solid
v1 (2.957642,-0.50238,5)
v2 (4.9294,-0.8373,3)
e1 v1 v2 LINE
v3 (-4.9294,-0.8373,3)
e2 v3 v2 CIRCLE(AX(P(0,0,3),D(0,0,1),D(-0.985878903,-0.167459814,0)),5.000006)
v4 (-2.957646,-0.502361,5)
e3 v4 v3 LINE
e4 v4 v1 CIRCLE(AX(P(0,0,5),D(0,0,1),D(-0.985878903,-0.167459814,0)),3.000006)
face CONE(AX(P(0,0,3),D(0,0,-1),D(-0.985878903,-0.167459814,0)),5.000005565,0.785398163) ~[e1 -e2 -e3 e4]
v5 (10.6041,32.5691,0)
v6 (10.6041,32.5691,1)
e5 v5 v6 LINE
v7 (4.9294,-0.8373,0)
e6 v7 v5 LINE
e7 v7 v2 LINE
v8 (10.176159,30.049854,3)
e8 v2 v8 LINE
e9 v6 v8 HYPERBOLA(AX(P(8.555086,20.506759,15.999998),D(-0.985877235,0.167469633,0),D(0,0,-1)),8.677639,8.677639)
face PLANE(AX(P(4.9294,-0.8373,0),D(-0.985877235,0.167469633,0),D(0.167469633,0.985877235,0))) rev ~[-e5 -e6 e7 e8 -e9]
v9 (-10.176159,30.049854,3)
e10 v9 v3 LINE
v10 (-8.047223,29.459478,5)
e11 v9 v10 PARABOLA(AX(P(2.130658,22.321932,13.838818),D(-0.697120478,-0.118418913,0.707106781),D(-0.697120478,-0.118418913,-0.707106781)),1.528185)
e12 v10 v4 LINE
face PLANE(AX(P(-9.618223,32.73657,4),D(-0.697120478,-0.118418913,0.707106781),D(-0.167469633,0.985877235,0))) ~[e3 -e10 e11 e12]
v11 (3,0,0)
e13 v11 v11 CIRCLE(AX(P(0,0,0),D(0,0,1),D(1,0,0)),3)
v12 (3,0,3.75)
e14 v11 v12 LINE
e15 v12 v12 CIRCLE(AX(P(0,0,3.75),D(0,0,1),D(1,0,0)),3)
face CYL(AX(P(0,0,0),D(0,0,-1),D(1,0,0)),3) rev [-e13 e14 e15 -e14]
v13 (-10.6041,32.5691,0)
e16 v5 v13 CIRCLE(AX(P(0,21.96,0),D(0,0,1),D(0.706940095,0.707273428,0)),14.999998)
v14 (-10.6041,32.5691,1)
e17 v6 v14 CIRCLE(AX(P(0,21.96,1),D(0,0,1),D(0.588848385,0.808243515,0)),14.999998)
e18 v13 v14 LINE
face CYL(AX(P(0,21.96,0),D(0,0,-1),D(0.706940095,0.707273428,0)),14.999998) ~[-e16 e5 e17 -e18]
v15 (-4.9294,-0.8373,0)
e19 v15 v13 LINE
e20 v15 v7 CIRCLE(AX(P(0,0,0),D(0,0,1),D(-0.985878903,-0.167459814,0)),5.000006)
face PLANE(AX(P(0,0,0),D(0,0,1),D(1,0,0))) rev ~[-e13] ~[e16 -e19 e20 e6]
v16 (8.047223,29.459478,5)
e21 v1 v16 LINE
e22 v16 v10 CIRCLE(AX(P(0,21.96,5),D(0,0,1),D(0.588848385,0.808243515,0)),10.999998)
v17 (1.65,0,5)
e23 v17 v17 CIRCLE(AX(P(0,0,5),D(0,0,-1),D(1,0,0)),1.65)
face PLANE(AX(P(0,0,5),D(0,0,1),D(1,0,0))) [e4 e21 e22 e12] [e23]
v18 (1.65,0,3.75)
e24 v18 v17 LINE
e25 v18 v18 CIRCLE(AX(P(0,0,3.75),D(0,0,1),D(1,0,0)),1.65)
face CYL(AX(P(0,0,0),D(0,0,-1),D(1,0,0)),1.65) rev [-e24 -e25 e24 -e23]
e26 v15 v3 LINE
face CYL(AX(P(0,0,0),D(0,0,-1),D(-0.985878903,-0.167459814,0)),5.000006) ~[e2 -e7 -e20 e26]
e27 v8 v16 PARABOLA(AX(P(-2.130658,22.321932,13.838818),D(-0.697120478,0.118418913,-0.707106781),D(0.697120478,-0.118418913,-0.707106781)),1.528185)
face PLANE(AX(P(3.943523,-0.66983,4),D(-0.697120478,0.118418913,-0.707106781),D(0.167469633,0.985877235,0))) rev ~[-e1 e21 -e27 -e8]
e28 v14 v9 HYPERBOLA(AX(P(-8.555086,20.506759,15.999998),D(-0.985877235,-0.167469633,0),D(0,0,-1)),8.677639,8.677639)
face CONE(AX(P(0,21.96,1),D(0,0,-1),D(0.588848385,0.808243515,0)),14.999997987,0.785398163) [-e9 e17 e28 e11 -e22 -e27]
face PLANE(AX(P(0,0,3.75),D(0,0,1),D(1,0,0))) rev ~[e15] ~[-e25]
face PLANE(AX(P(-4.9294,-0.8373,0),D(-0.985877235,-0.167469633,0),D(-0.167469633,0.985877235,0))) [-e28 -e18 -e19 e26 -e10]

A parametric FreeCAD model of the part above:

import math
import FreeCAD as App
import Part
import Sketcher

V = App.Vector
Q = App.Units.Quantity


def edges_at(feature, points):
    """Names of the edges that pass closest to the given points."""
    edges = feature.Shape.Edges
    near = lambda p: min(range(len(edges)), key=lambda i: edges[i].distToShape(Part.Vertex(*p))[0])
    return sorted({f"Edge{near(p) + 1}" for p in points})

doc = App.newDocument("Part")
params = doc.addObject("Spreadsheet::Sheet", "Params")
for row, (alias, value) in enumerate([
    ("sketch1_radius", "5 mm"),
    ("sketch1_radius2", "15 mm"),
    ("pad1_length", "5 mm"),
    ("sketch2_diameter", "3.3 mm"),
    ("pocket1_length", "28 mm"),
    ("sketch3_diameter", "6 mm"),
    ("sketch3_diameter2", "3.3 mm"),
    ("pocket2_length", "3.75 mm"),
    ("chamfer_size", "2 mm"),
    ("chamfer2_size", "4 mm"),
], start=1):
    params.set(f"A{row}", alias)
    params.set(f"B{row}", "=" + value)
    params.setAlias(f"B{row}", alias)

body = doc.addObject("PartDesign::Body", "Body")

# Sketch on XY plane
sketch1 = doc.addObject("Sketcher::SketchObject", "Sketch")
body.addObject(sketch1)
sketch1.AttachmentSupport = (doc.XY_Plane, [""])
sketch1.MapMode = "FlatFace"
sketch1.addGeometry(Part.LineSegment(V(-10.6041, 32.5691, 0), V(-4.9294, -0.8373, 0)), False)
sketch1.addGeometry(Part.ArcOfCircle(Part.Circle(V(0, 0, 0), V(0, 0, 1), 5.000006), math.radians(-170.35984), math.radians(-9.64016)), False)
sketch1.addGeometry(Part.LineSegment(V(4.9294, -0.8373, 0), V(10.6041, 32.5691, 0)), False)
sketch1.addGeometry(Part.ArcOfCircle(Part.Circle(V(0, 21.96, 0), V(0, 0, 1), 14.999998), math.radians(45.013505), math.radians(134.986495)), False)
sketch1.addConstraint(Sketcher.Constraint("Tangent", 0, 2, 1, 1))
sketch1.addConstraint(Sketcher.Constraint("Tangent", 1, 2, 2, 1))
sketch1.addConstraint(Sketcher.Constraint("Coincident", 2, 2, 3, 1))
sketch1.addConstraint(Sketcher.Constraint("Coincident", 3, 2, 0, 1))
sketch1.addConstraint(Sketcher.Constraint("Coincident", 1, 3, -1, 1))
sketch1.addConstraint(Sketcher.Constraint("Symmetric", 2, 2, 3, 2, -2))
sketch1.addConstraint(Sketcher.Constraint("Radius", 1, Q("5 mm")))
sketch1.addConstraint(Sketcher.Constraint("Radius", 3, Q("15 mm")))
sketch1.addConstraint(Sketcher.Constraint("DistanceY", -1, 1, 3, 3, Q("21.96 mm")))
sketch1.addConstraint(Sketcher.Constraint("Distance", 0, Q("33.885 mm")))
sketch1.setExpression("Constraints[6]", "Params.sketch1_radius")
sketch1.setExpression("Constraints[7]", "Params.sketch1_radius2")
pad1 = doc.addObject("PartDesign::Pad", "Pad")
body.addObject(pad1)
pad1.Profile = sketch1
pad1.setExpression("Length", "Params.pad1_length")

# Sketch on XY plane
sketch2 = doc.addObject("Sketcher::SketchObject", "Sketch001")
body.addObject(sketch2)
sketch2.AttachmentSupport = (doc.XY_Plane, [""])
sketch2.MapMode = "FlatFace"
sketch2.addGeometry(Part.Circle(V(0, 0, 0), V(0, 0, 1), 1.65), False)
sketch2.addConstraint(Sketcher.Constraint("Coincident", 0, 3, -1, 1))
sketch2.addConstraint(Sketcher.Constraint("Diameter", 0, Q("3.3 mm")))
sketch2.setExpression("Constraints[1]", "Params.sketch2_diameter")
pocket1 = doc.addObject("PartDesign::Pocket", "Pocket")
body.addObject(pocket1)
pocket1.Profile = sketch2
pocket1.setExpression("Length", "Params.pocket1_length")
pocket1.Reversed = True

# Sketch on XY plane
sketch3 = doc.addObject("Sketcher::SketchObject", "Sketch002")
body.addObject(sketch3)
sketch3.AttachmentSupport = (doc.XY_Plane, [""])
sketch3.MapMode = "FlatFace"
sketch3.addGeometry(Part.Circle(V(0, 0, 0), V(0, 0, 1), 3), False)
sketch3.addGeometry(Part.Circle(V(0, 0, 0), V(0, 0, 1), 1.65), False)
sketch3.addConstraint(Sketcher.Constraint("Coincident", 0, 3, -1, 1))
sketch3.addConstraint(Sketcher.Constraint("Coincident", 1, 3, -1, 1))
sketch3.addConstraint(Sketcher.Constraint("Diameter", 0, Q("6 mm")))
sketch3.addConstraint(Sketcher.Constraint("Diameter", 1, Q("3.3 mm")))
sketch3.setExpression("Constraints[2]", "Params.sketch3_diameter")
sketch3.setExpression("Constraints[3]", "Params.sketch3_diameter2")
pocket2 = doc.addObject("PartDesign::Pocket", "Pocket001")
body.addObject(pocket2)
pocket2.Profile = sketch3
pocket2.setExpression("Length", "Params.pocket2_length")
pocket2.Reversed = True
doc.recompute()

chamfer = doc.addObject("PartDesign::Chamfer", "Chamfer")
body.addObject(chamfer)
chamfer.Base = (pocket2, edges_at(pocket2, [(7.767, 15.866, 5), (-7.767, 15.866, 5)]))
chamfer.setExpression("Size", "Params.chamfer_size")
doc.recompute()

chamfer2 = doc.addObject("PartDesign::Chamfer", "Chamfer001")
body.addObject(chamfer2)
chamfer2.Base = (chamfer, edges_at(chamfer, [(0, 36.96, 5)]))
chamfer2.setExpression("Size", "Params.chamfer2_size")

doc.recompute()
